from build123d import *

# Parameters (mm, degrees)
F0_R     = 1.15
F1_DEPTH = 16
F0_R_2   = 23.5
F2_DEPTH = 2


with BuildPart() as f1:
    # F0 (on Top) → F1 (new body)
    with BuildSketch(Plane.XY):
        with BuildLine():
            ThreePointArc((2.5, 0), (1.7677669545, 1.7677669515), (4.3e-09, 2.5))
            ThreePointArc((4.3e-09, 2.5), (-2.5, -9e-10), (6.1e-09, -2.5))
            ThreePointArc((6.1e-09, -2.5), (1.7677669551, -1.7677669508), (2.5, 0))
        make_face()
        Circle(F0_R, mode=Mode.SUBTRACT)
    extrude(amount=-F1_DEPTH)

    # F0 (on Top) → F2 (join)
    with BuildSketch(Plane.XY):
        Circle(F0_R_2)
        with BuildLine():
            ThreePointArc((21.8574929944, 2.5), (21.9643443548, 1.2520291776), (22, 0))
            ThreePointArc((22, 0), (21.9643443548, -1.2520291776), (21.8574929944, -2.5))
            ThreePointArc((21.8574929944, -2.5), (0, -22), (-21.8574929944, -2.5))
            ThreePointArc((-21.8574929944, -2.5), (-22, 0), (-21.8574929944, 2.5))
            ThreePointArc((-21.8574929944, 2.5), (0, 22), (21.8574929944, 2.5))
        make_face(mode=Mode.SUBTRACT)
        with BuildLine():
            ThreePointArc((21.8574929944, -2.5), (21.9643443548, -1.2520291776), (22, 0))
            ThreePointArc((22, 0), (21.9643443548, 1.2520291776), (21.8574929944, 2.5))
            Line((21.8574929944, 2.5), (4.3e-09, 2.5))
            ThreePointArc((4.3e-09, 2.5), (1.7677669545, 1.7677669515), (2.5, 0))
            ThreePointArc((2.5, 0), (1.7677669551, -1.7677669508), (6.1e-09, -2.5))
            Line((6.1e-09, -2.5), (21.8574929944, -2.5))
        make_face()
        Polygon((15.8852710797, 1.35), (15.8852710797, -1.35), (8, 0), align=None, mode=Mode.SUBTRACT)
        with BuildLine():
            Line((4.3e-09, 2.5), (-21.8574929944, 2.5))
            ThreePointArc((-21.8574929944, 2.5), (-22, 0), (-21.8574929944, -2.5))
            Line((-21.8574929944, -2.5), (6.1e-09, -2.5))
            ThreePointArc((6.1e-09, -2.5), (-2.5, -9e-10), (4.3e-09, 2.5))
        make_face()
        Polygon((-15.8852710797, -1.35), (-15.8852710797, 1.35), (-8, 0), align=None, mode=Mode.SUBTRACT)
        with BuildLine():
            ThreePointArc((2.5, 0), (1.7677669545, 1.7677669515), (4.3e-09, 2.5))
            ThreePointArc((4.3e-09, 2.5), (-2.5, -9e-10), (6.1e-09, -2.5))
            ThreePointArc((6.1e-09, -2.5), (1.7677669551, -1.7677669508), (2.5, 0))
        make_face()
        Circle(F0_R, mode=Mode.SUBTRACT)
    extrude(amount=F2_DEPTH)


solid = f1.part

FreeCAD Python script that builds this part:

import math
import FreeCAD as App
import Part
import Sketcher

doc = App.newDocument("Part")
body = doc.addObject("PartDesign::Body", "Body")

# Sketch on XY plane
sketch1 = body.newObject("Sketcher::SketchObject", "Sketch")
sketch1.AttachmentSupport = (doc.getObject("XY_Plane"), [""])
sketch1.MapMode = "FlatFace"
sketch1.addGeometry([
    Part.ArcOfCircle(Part.Circle(App.Vector(0, 0, 0), App.Vector(0, 0, 1), 2.5), math.radians(0), math.radians(90)),
    Part.ArcOfCircle(Part.Circle(App.Vector(0, 0, 0), App.Vector(0, 0, 1), 2.5), math.radians(90), math.radians(270)),
    Part.ArcOfCircle(Part.Circle(App.Vector(0, 0, 0), App.Vector(0, 0, 1), 2.5), math.radians(-90), math.radians(0)),
    Part.Circle(App.Vector(0, 0, 0), App.Vector(0, 0, 1), 1.1),
], False)
sketch1.addConstraint([
    Sketcher.Constraint("Tangent", 0, 2, 1, 1),
    Sketcher.Constraint("Tangent", 1, 2, 2, 1),
    Sketcher.Constraint("Tangent", 2, 2, 0, 1),
    Sketcher.Constraint("Coincident", 0, 3, -1, 1),
    Sketcher.Constraint("Coincident", 3, 3, -1, 1),
    Sketcher.Constraint("PointOnObject", 0, 2, -2),
    Sketcher.Constraint("PointOnObject", 1, 2, -2),
    Sketcher.Constraint("PointOnObject", 2, 2, -1),
    Sketcher.Constraint("Diameter", 3, 2.3),
    Sketcher.Constraint("Radius", 0, 2.5),
])
pad1 = body.newObject("PartDesign::Pad", "Pad")
pad1.Profile = sketch1
pad1.Length = 16
pad1.Reversed = True

# Sketch on XY plane
sketch2 = body.newObject("Sketcher::SketchObject", "Sketch001")
sketch2.AttachmentSupport = (doc.getObject("XY_Plane"), [""])
sketch2.MapMode = "FlatFace"
sketch2.addGeometry([
    Part.Circle(App.Vector(0, 0, 0), App.Vector(0, 0, 1), 23.5),  # 0
    Part.ArcOfCircle(Part.Circle(App.Vector(0, 0, 0), App.Vector(0, 0, 1), 22), math.radians(-173), math.radians(-7)),  # 1
    Part.LineSegment(App.Vector(-21.9, -2.5, 0), App.Vector(21.9, -2.5, 0)),  # 2
    Part.LineSegment(App.Vector(-8, 0, 0), App.Vector(-15.9, -1.4, 0)),  # 3
    Part.LineSegment(App.Vector(-15.9, -1.4, 0), App.Vector(-15.9, 1.4, 0)),  # 4
    Part.LineSegment(App.Vector(-15.9, 1.4, 0), App.Vector(-8, 0, 0)),  # 5
    Part.Circle(App.Vector(0, 0, 0), App.Vector(0, 0, 1), 1.1),  # 6
    Part.LineSegment(App.Vector(8, 0, 0), App.Vector(15.9, 1.4, 0)),  # 7
    Part.LineSegment(App.Vector(15.9, 1.4, 0), App.Vector(15.9, -1.4, 0)),  # 8
    Part.LineSegment(App.Vector(15.9, -1.4, 0), App.Vector(8, 0, 0)),  # 9
    Part.LineSegment(App.Vector(21.9, 2.5, 0), App.Vector(-21.9, 2.5, 0)),  # 10
    Part.ArcOfCircle(Part.Circle(App.Vector(0, 0, 0), App.Vector(0, 0, 1), 22), math.radians(7), math.radians(173)),  # 11
], False)
sketch2.addConstraint([
    Sketcher.Constraint("Coincident", 1, 1, 2, 1),
    Sketcher.Constraint("Coincident", 2, 2, 1, 2),
    Sketcher.Constraint("Coincident", 3, 2, 4, 1),
    Sketcher.Constraint("Coincident", 4, 2, 5, 1),
    Sketcher.Constraint("Coincident", 5, 2, 3, 1),
    Sketcher.Constraint("Coincident", 7, 2, 8, 1),
    Sketcher.Constraint("Coincident", 8, 2, 9, 1),
    Sketcher.Constraint("Coincident", 9, 2, 7, 1),
    Sketcher.Constraint("Coincident", 10, 1, 11, 1),
    Sketcher.Constraint("Coincident", 11, 2, 10, 2),
    Sketcher.Constraint("Horizontal", 2),
    Sketcher.Constraint("Vertical", 4),
    Sketcher.Constraint("Vertical", 8),
    Sketcher.Constraint("Horizontal", 10),
    Sketcher.Constraint("Coincident", 0, 3, -1, 1),
    Sketcher.Constraint("Coincident", 1, 3, -1, 1),
    Sketcher.Constraint("Coincident", 6, 3, -1, 1),
    Sketcher.Constraint("Coincident", 11, 3, -1, 1),
    Sketcher.Constraint("Equal", 1, 11),
    Sketcher.Constraint("Symmetric", 3, 2, 7, 2, -1, 1),
    Sketcher.Constraint("Symmetric", 5, 2, 9, 2, -1, 1),
    Sketcher.Constraint("PointOnObject", 5, 2, -1),
    Sketcher.Constraint("Parallel", 5, 9),
    Sketcher.Constraint("Horizontal", 4, 2, 7, 2),
    Sketcher.Constraint("Vertical", 2, 2, 10, 1),
    Sketcher.Constraint("Diameter", 0, 47.0),
    Sketcher.Constraint("Radius", 1, 22.0),
    Sketcher.Constraint("Diameter", 6, 2.3),
    Sketcher.Constraint("Distance", 3, 8.0),
    Sketcher.Constraint("DistanceY", 4, 1, 4, 2, 2.7),
    Sketcher.Constraint("DistanceX", 5, 2, -1, 1, 8.0),
    Sketcher.Constraint("DistanceY", 2, 2, 10, 1, 5.0),
])
pad2 = body.newObject("PartDesign::Pad", "Pad001")
pad2.Profile = sketch2
pad2.Length = 2

doc.recompute()
